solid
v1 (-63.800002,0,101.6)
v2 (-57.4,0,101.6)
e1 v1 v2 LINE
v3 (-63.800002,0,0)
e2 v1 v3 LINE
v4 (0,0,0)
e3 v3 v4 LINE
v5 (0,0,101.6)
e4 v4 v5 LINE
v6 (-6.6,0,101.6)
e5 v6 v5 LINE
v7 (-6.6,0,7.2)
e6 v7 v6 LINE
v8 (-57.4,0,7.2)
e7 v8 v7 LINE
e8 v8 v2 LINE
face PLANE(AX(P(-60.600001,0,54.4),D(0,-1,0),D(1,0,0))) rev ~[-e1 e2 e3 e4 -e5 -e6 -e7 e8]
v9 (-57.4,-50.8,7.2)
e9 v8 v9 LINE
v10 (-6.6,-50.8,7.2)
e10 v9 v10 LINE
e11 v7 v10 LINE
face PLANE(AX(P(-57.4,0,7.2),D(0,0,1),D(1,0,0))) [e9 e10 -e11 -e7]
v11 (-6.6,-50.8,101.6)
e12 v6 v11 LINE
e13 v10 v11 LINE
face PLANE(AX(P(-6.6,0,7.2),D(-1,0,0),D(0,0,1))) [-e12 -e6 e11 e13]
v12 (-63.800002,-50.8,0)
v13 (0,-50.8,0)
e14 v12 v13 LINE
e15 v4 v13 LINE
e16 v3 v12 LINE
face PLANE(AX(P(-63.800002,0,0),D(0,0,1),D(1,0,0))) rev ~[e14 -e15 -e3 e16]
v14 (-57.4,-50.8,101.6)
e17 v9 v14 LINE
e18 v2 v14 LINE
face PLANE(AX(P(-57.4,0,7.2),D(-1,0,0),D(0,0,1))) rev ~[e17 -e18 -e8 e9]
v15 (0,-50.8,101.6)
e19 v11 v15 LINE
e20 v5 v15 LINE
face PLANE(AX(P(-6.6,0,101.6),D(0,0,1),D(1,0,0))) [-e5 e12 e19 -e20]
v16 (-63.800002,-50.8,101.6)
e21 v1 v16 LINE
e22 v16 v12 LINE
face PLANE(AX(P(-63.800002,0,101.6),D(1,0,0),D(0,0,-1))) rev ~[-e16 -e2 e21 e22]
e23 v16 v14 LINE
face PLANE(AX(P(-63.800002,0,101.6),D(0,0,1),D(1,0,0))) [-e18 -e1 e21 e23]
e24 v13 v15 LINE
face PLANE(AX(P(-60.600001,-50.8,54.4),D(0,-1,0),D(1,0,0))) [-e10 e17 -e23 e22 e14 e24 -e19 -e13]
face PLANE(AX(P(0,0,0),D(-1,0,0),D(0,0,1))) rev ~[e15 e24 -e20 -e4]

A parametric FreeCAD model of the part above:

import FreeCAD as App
import Part
import Sketcher

V = App.Vector

doc = App.newDocument("Part")
body = doc.addObject("PartDesign::Body", "Body")

# Sketch on XZ plane
sketch1 = body.newObject("Sketcher::SketchObject", "Sketch")
sketch1.AttachmentSupport = (doc.getObject("XZ_Plane"), [""])
sketch1.MapMode = "FlatFace"
sketch1.addGeometry(Part.LineSegment(V(-64, 102, 0), V(-64, 0, 0)), False)
sketch1.addGeometry(Part.LineSegment(V(-64, 0, 0), V(0, 0, 0)), False)
sketch1.addGeometry(Part.LineSegment(V(0, 0, 0), V(0, 102, 0)), False)
sketch1.addGeometry(Part.LineSegment(V(0, 102, 0), V(-7, 102, 0)), False)
sketch1.addGeometry(Part.LineSegment(V(-7, 102, 0), V(-7, 7, 0)), False)
sketch1.addGeometry(Part.LineSegment(V(-7, 7, 0), V(-57, 7, 0)), False)
sketch1.addGeometry(Part.LineSegment(V(-57, 7, 0), V(-57, 102, 0)), False)
sketch1.addGeometry(Part.LineSegment(V(-57, 102, 0), V(-64, 102, 0)), False)
sketch1.addConstraint(Sketcher.Constraint("Coincident", 0, 2, 1, 1))
sketch1.addConstraint(Sketcher.Constraint("Coincident", 1, 2, 2, 1))
sketch1.addConstraint(Sketcher.Constraint("Coincident", 2, 2, 3, 1))
sketch1.addConstraint(Sketcher.Constraint("Coincident", 3, 2, 4, 1))
sketch1.addConstraint(Sketcher.Constraint("Coincident", 4, 2, 5, 1))
sketch1.addConstraint(Sketcher.Constraint("Coincident", 5, 2, 6, 1))
sketch1.addConstraint(Sketcher.Constraint("Coincident", 6, 2, 7, 1))
sketch1.addConstraint(Sketcher.Constraint("Coincident", 7, 2, 0, 1))
sketch1.addConstraint(Sketcher.Constraint("Vertical", 0))
sketch1.addConstraint(Sketcher.Constraint("Horizontal", 1))
sketch1.addConstraint(Sketcher.Constraint("Vertical", 2))
sketch1.addConstraint(Sketcher.Constraint("Horizontal", 3))
sketch1.addConstraint(Sketcher.Constraint("Vertical", 4))
sketch1.addConstraint(Sketcher.Constraint("Horizontal", 5))
sketch1.addConstraint(Sketcher.Constraint("Vertical", 6))
sketch1.addConstraint(Sketcher.Constraint("Horizontal", 7))
sketch1.addConstraint(Sketcher.Constraint("Coincident", 1, 2, -1, 1))
sketch1.addConstraint(Sketcher.Constraint("Horizontal", 3, 2, 6, 2))
sketch1.addConstraint(Sketcher.Constraint("DistanceX", 3, 2, 3, 1, 6.6))
sketch1.addConstraint(Sketcher.Constraint("DistanceX", 5, 2, 5, 1, 50.8))
sketch1.addConstraint(Sketcher.Constraint("DistanceY", 0, 2, 0, 1, 101.6))
sketch1.addConstraint(Sketcher.Constraint("DistanceY", 4, 2, 4, 1, 94.4))
sketch1.addConstraint(Sketcher.Constraint("DistanceX", 0, 2, 3, 2, 57.200002))
pad1 = body.newObject("PartDesign::Pad", "Pad")
pad1.Profile = sketch1
pad1.Length = 50.8

doc.recompute()
